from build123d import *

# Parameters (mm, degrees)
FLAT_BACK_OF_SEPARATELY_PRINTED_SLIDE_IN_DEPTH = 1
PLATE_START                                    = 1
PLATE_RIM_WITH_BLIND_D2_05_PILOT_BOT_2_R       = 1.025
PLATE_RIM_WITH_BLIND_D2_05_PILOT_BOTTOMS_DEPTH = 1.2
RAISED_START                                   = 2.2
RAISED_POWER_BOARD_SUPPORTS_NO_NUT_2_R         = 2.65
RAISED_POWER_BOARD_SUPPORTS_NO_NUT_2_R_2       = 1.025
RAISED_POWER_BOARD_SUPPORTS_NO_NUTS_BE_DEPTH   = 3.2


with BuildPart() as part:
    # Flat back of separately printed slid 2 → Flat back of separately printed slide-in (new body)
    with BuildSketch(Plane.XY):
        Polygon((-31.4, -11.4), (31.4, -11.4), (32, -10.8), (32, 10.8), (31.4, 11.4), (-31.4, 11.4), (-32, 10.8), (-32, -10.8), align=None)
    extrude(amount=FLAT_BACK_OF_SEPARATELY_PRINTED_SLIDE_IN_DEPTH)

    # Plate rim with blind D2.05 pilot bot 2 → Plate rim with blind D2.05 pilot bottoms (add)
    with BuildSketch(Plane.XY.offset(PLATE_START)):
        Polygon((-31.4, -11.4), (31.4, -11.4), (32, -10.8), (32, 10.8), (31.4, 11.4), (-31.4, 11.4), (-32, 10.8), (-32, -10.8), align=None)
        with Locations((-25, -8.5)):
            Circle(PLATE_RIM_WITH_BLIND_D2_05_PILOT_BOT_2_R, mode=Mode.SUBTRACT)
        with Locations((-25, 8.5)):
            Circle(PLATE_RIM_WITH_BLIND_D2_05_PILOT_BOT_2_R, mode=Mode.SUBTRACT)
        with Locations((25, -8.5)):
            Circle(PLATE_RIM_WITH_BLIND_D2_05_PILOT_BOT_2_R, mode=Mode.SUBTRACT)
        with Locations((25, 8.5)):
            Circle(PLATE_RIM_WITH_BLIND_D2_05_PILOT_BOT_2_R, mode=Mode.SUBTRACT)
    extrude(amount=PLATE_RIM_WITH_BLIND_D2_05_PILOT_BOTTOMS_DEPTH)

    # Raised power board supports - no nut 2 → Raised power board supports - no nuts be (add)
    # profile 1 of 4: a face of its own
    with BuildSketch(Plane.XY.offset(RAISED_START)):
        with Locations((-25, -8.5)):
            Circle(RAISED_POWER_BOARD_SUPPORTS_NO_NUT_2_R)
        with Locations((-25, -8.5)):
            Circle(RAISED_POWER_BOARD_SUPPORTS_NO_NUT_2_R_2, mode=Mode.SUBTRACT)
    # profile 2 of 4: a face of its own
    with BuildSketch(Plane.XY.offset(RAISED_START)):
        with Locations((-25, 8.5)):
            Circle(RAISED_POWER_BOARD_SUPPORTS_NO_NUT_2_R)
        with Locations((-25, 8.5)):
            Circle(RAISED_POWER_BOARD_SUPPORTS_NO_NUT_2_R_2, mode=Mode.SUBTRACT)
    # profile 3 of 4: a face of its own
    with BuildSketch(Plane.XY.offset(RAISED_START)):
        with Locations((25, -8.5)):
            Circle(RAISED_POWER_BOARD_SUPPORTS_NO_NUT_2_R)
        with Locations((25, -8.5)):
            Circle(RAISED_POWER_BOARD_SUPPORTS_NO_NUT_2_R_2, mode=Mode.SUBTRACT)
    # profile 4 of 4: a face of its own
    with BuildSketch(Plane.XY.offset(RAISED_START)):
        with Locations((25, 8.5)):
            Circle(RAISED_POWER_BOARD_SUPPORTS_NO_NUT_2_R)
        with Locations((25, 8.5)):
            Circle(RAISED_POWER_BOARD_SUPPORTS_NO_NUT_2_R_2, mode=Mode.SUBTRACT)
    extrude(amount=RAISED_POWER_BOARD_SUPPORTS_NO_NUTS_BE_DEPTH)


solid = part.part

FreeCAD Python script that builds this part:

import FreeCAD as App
import Part
import Sketcher
from FreeCAD import Vector

doc = App.newDocument("Part")
body = doc.addObject("PartDesign::Body", "Body")

sketch1 = doc.addObject("Sketcher::SketchObject", "Sketch")
body.addObject(sketch1)
sketch1.AttachmentSupport = (doc.XY_Plane, [""])
sketch1.MapMode = "FlatFace"
sketch1.addGeometry([
    Part.LineSegment(Vector(-31.4, -11.4, 0), Vector(31.4, -11.4, 0)),
    Part.LineSegment(Vector(31.4, -11.4, 0), Vector(32, -10.8, 0)),
    Part.LineSegment(Vector(32, -10.8, 0), Vector(32, 10.8, 0)),
    Part.LineSegment(Vector(32, 10.8, 0), Vector(31.4, 11.4, 0)),
    Part.LineSegment(Vector(31.4, 11.4, 0), Vector(-31.4, 11.4, 0)),
    Part.LineSegment(Vector(-31.4, 11.4, 0), Vector(-32, 10.8, 0)),
    Part.LineSegment(Vector(-32, 10.8, 0), Vector(-32, -10.8, 0)),
    Part.LineSegment(Vector(-32, -10.8, 0), Vector(-31.4, -11.4, 0)),
], False)
sketch1.addConstraint([
    Sketcher.Constraint("Coincident", 0, 2, 1, 1),
    Sketcher.Constraint("Coincident", 1, 2, 2, 1),
    Sketcher.Constraint("Coincident", 2, 2, 3, 1),
    Sketcher.Constraint("Coincident", 3, 2, 4, 1),
    Sketcher.Constraint("Coincident", 4, 2, 5, 1),
    Sketcher.Constraint("Coincident", 5, 2, 6, 1),
    Sketcher.Constraint("Coincident", 6, 2, 7, 1),
    Sketcher.Constraint("Coincident", 7, 2, 0, 1),
    Sketcher.Constraint("Horizontal", 0),
    Sketcher.Constraint("Vertical", 2),
    Sketcher.Constraint("Horizontal", 4),
    Sketcher.Constraint("Vertical", 6),
    Sketcher.Constraint("Symmetric", 0, 2, 4, 2, -1, 1),
    Sketcher.Constraint("Symmetric", 1, 2, 5, 2, -1, 1),
    Sketcher.Constraint("Perpendicular", 1, 3),
    Sketcher.Constraint("Perpendicular", 5, 7),
    Sketcher.Constraint("Horizontal", 2, 2, 5, 2),
    Sketcher.Constraint("Horizontal", 1, 2, 6, 2),
    Sketcher.Constraint("Vertical", 0, 2, 3, 2),
    Sketcher.Constraint("DistanceX", 0, 1, 0, 2, 62.8),
    Sketcher.Constraint("DistanceY", 2, 1, 2, 2, 21.6),
    Sketcher.Constraint("DistanceX", -1, 1, 1, 2, 32.0),
])
pad1 = doc.addObject("PartDesign::Pad", "Pad")
body.addObject(pad1)
pad1.Profile = sketch1
pad1.Length = 1

sketch2 = doc.addObject("Sketcher::SketchObject", "Sketch001")
body.addObject(sketch2)
sketch2.AttachmentSupport = (doc.XY_Plane, [""])
sketch2.MapMode = "FlatFace"
sketch2.AttachmentOffset = App.Placement(Vector(0, 0, 1), App.Rotation())
sketch2.addGeometry([
    Part.LineSegment(Vector(-31.4, -11.4, 0), Vector(31.4, -11.4, 0)),
    Part.LineSegment(Vector(31.4, -11.4, 0), Vector(32, -10.8, 0)),
    Part.LineSegment(Vector(32, -10.8, 0), Vector(32, 10.8, 0)),
    Part.LineSegment(Vector(32, 10.8, 0), Vector(31.4, 11.4, 0)),
    Part.LineSegment(Vector(31.4, 11.4, 0), Vector(-31.4, 11.4, 0)),
    Part.LineSegment(Vector(-31.4, 11.4, 0), Vector(-32, 10.8, 0)),
    Part.LineSegment(Vector(-32, 10.8, 0), Vector(-32, -10.8, 0)),
    Part.LineSegment(Vector(-32, -10.8, 0), Vector(-31.4, -11.4, 0)),
    Part.Circle(Vector(-25, -8.5, 0), Vector(0, 0, 1), 1),
    Part.Circle(Vector(25, -8.5, 0), Vector(0, 0, 1), 1),
    Part.Circle(Vector(-25, 8.5, 0), Vector(0, 0, 1), 1),
    Part.Circle(Vector(25, 8.5, 0), Vector(0, 0, 1), 1),
], False)
sketch2.addConstraint([
    Sketcher.Constraint("Coincident", 0, 2, 1, 1),
    Sketcher.Constraint("Coincident", 1, 2, 2, 1),
    Sketcher.Constraint("Coincident", 2, 2, 3, 1),
    Sketcher.Constraint("Coincident", 3, 2, 4, 1),
    Sketcher.Constraint("Coincident", 4, 2, 5, 1),
    Sketcher.Constraint("Coincident", 5, 2, 6, 1),
    Sketcher.Constraint("Coincident", 6, 2, 7, 1),
    Sketcher.Constraint("Coincident", 7, 2, 0, 1),
    Sketcher.Constraint("Horizontal", 0),
    Sketcher.Constraint("Vertical", 2),
    Sketcher.Constraint("Horizontal", 4),
    Sketcher.Constraint("Vertical", 6),
    Sketcher.Constraint("Equal", 8, 9),
    Sketcher.Constraint("Equal", 9, 10),
    Sketcher.Constraint("Equal", 10, 11),
    Sketcher.Constraint("Symmetric", 9, 3, 10, 3, -1, 1),
    Sketcher.Constraint("Symmetric", 8, 3, 11, 3, -1, 1),
    Sketcher.Constraint("Symmetric", 0, 2, 4, 2, -1, 1),
    Sketcher.Constraint("Symmetric", 1, 2, 5, 2, -1, 1),
    Sketcher.Constraint("Symmetric", 8, 3, 9, 3, -2),
    Sketcher.Constraint("Perpendicular", 1, 3),
    Sketcher.Constraint("Perpendicular", 5, 7),
    Sketcher.Constraint("Horizontal", 2, 2, 5, 2),
    Sketcher.Constraint("Horizontal", 1, 2, 6, 2),
    Sketcher.Constraint("Vertical", 0, 2, 3, 2),
    Sketcher.Constraint("Diameter", 8, 2.05),
    Sketcher.Constraint("DistanceX", 0, 1, 0, 2, 62.8),
    Sketcher.Constraint("DistanceY", 2, 1, 2, 2, 21.6),
    Sketcher.Constraint("DistanceX", 8, 3, -1, 1, 25.0),
    Sketcher.Constraint("DistanceX", -1, 1, 1, 2, 32.0),
    Sketcher.Constraint("DistanceY", 8, 3, 10, 3, 17.0),
])
pad2 = doc.addObject("PartDesign::Pad", "Pad001")
body.addObject(pad2)
pad2.Profile = sketch2
pad2.Length = 1.2

sketch3 = doc.addObject("Sketcher::SketchObject", "Sketch002")
body.addObject(sketch3)
sketch3.AttachmentSupport = (doc.XY_Plane, [""])
sketch3.MapMode = "FlatFace"
sketch3.AttachmentOffset = App.Placement(Vector(0, 0, 2.2), App.Rotation())
sketch3.addGeometry([
    Part.Circle(Vector(-25, -8.5, 0), Vector(0, 0, 1), 2.6),
    Part.Circle(Vector(-25, -8.5, 0), Vector(0, 0, 1), 1),
    Part.Circle(Vector(-25, 8.5, 0), Vector(0, 0, 1), 2.6),
    Part.Circle(Vector(-25, 8.5, 0), Vector(0, 0, 1), 1),
    Part.Circle(Vector(25, -8.5, 0), Vector(0, 0, 1), 2.6),
    Part.Circle(Vector(25, -8.5, 0), Vector(0, 0, 1), 1),
    Part.Circle(Vector(25, 8.5, 0), Vector(0, 0, 1), 2.6),
    Part.Circle(Vector(25, 8.5, 0), Vector(0, 0, 1), 1),
], False)
sketch3.addConstraint([
    Sketcher.Constraint("Coincident", 1, 3, 0, 3),
    Sketcher.Constraint("Coincident", 3, 3, 2, 3),
    Sketcher.Constraint("Coincident", 5, 3, 4, 3),
    Sketcher.Constraint("Coincident", 7, 3, 6, 3),
    Sketcher.Constraint("Equal", 0, 2),
    Sketcher.Constraint("Equal", 1, 3),
    Sketcher.Constraint("Equal", 2, 4),
    Sketcher.Constraint("Equal", 3, 5),
    Sketcher.Constraint("Equal", 4, 6),
    Sketcher.Constraint("Equal", 5, 7),
    Sketcher.Constraint("Symmetric", 2, 3, 4, 3, -1, 1),
    Sketcher.Constraint("Symmetric", 0, 3, 6, 3, -1, 1),
    Sketcher.Constraint("Symmetric", 0, 3, 4, 3, -2),
    Sketcher.Constraint("Diameter", 0, 5.3),
    Sketcher.Constraint("Diameter", 1, 2.05),
    Sketcher.Constraint("DistanceX", 0, 3, -1, 1, 25.0),
    Sketcher.Constraint("DistanceY", 0, 3, 2, 3, 17.0),
])
pad3 = doc.addObject("PartDesign::Pad", "Pad002")
body.addObject(pad3)
pad3.Profile = sketch3
pad3.Length = 3.2

doc.recompute()
